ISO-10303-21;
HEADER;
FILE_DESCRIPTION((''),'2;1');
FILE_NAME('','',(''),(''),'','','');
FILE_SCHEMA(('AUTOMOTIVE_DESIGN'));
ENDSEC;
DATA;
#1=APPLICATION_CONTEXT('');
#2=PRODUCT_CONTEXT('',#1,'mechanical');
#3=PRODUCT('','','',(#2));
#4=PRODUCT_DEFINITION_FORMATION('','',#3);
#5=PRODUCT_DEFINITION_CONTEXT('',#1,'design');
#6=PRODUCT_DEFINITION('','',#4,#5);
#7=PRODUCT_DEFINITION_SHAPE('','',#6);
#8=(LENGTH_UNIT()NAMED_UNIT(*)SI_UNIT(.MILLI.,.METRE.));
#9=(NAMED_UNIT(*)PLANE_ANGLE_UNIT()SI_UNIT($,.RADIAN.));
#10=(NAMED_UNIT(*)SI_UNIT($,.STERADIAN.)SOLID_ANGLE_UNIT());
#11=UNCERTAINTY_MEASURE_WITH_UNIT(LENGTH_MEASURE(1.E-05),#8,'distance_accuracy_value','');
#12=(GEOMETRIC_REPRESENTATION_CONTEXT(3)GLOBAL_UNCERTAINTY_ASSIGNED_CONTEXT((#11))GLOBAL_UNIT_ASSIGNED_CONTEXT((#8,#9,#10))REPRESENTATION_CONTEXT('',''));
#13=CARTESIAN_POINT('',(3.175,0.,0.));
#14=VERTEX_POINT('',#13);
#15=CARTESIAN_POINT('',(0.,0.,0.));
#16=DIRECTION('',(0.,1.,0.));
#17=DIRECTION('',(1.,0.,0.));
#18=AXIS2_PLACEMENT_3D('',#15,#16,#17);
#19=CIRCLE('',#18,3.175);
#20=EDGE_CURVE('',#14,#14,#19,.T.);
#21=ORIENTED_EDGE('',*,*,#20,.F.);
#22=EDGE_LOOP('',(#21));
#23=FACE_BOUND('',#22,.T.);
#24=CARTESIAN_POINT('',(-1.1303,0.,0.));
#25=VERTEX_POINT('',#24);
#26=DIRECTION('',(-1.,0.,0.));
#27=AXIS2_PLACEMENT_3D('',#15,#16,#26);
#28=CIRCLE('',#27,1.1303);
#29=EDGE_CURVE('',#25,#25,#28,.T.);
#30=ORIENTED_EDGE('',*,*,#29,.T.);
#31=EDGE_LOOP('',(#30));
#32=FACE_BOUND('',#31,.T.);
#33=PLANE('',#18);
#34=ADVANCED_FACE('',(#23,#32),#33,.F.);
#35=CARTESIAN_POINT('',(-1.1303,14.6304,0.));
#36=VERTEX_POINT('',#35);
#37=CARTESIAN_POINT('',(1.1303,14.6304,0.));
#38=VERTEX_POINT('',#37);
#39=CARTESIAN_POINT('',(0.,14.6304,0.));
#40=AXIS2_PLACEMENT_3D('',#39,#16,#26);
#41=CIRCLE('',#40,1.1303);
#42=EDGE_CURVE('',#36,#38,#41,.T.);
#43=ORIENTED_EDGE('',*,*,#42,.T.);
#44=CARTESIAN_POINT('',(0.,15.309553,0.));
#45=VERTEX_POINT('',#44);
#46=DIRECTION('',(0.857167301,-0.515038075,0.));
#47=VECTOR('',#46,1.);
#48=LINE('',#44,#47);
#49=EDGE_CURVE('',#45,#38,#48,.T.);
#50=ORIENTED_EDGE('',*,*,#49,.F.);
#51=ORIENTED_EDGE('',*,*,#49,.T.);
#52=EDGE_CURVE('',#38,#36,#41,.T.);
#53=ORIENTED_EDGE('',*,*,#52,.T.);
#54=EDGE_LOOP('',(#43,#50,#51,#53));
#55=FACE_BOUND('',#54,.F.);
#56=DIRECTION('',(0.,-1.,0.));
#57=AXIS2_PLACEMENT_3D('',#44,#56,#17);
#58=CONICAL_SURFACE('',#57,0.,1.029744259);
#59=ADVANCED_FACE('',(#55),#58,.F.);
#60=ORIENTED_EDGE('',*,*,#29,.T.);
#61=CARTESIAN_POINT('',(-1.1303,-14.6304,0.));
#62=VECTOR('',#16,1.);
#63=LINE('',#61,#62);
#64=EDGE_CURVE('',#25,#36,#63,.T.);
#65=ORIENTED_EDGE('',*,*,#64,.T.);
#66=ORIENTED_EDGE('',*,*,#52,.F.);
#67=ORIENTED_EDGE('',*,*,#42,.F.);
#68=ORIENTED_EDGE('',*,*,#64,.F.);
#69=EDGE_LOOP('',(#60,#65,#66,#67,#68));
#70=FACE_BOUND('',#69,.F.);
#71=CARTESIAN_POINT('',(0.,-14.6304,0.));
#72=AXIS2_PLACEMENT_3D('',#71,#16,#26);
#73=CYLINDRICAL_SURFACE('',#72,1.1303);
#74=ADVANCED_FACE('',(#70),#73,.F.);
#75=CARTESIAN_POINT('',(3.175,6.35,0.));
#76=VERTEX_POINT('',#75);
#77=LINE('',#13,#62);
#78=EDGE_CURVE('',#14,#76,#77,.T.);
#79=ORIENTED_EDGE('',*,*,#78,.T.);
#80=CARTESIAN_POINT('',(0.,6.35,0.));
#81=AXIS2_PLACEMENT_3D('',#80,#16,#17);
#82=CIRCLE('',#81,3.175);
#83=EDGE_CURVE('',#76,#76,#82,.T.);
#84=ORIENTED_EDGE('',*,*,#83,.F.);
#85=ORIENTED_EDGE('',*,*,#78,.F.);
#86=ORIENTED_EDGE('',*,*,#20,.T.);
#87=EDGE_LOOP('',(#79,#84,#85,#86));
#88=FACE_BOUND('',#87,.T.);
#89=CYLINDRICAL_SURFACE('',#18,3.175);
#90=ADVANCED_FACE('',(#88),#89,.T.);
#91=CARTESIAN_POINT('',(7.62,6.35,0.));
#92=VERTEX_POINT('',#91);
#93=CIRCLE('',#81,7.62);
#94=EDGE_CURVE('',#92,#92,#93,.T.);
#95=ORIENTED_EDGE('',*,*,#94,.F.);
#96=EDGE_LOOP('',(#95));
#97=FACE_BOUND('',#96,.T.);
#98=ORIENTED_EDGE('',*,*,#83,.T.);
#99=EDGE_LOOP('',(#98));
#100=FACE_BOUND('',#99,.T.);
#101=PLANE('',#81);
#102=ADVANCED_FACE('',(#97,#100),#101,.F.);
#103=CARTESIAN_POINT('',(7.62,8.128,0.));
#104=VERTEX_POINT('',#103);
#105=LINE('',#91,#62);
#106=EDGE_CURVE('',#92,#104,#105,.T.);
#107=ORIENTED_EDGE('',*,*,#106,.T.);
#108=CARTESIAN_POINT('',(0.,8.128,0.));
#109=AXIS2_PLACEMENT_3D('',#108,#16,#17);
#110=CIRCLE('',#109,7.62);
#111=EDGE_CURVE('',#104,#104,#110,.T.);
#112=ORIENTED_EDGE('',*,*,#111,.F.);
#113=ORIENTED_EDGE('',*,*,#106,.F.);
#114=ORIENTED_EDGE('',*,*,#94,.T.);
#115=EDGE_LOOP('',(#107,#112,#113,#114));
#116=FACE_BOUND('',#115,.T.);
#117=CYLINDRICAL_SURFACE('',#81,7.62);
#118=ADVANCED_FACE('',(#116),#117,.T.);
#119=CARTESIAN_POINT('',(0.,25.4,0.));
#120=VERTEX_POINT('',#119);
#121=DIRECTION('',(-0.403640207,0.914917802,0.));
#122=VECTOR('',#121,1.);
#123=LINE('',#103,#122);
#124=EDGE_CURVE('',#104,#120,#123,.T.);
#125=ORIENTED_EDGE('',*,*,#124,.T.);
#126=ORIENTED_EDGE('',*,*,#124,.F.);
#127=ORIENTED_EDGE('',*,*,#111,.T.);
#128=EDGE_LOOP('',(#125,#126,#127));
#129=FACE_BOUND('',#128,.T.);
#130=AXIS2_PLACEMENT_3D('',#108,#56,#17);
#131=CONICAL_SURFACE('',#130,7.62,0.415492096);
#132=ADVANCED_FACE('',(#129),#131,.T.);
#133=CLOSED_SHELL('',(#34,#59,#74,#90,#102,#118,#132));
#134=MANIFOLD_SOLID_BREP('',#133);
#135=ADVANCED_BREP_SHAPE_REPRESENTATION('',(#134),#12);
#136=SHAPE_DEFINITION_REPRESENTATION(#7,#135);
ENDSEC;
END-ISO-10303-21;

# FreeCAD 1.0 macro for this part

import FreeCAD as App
import Part
import Sketcher
from FreeCAD import Vector
Q = App.Units.Quantity

doc = App.newDocument("Part")
params = doc.addObject("Spreadsheet::Sheet", "Params")
for row, (alias, value) in enumerate([
    ("sketch1_height", "1 in"),
    ("sketch1_height2", "0.25 in"),
    ("sketch1_height3", "0.07 in"),
    ("sketch1_width", "0.125 in"),
    ("revolution_angle", "360 deg"),
    ("sketch2_diameter", "0.089 in"),
    ("hole_diameter", "0.089 in"),
    ("hole_depth", "0.576 in"),
], start=1):
    params.set(f"A{row}", alias)
    params.set(f"B{row}", "=" + value)
    params.setAlias(f"B{row}", alias)

body = doc.addObject("PartDesign::Body", "Body")

# Sketch on XY plane
sketch1 = doc.addObject("Sketcher::SketchObject", "Sketch")
body.addObject(sketch1)
sketch1.AttachmentSupport = (doc.XY_Plane, [""])
sketch1.MapMode = "FlatFace"
sketch1.addGeometry([
    Part.LineSegment(Vector(0, 25.4, 0), Vector(0, 0, 0)),  # 0
    Part.LineSegment(Vector(0, 0, 0), Vector(3.2, 0, 0)),  # 1
    Part.LineSegment(Vector(3.2, 0, 0), Vector(3.2, 6.3, 0)),  # 2
    Part.LineSegment(Vector(3.2, 6.3, 0), Vector(7.6, 6.3, 0)),  # 3
    Part.LineSegment(Vector(7.6, 6.3, 0), Vector(7.6, 8.1, 0)),  # 4
    Part.LineSegment(Vector(7.6, 8.1, 0), Vector(0, 25.4, 0)),  # 5
], False)
sketch1.addConstraint([
    Sketcher.Constraint("Coincident", 0, 2, 1, 1),
    Sketcher.Constraint("Coincident", 1, 2, 2, 1),
    Sketcher.Constraint("Coincident", 2, 2, 3, 1),
    Sketcher.Constraint("Coincident", 3, 2, 4, 1),
    Sketcher.Constraint("Coincident", 4, 2, 5, 1),
    Sketcher.Constraint("Coincident", 5, 2, 0, 1),
    Sketcher.Constraint("Vertical", 0),
    Sketcher.Constraint("Horizontal", 1),
    Sketcher.Constraint("Vertical", 2),
    Sketcher.Constraint("Horizontal", 3),
    Sketcher.Constraint("Vertical", 4),
    Sketcher.Constraint("Coincident", 0, 2, -1, 1),
    Sketcher.Constraint("DistanceY", 0, 2, 0, 1, Q("1 in")),
    Sketcher.Constraint("DistanceY", 2, 1, 2, 2, Q("0.25 in")),
    Sketcher.Constraint("DistanceY", 4, 1, 4, 2, Q("0.07 in")),
    Sketcher.Constraint("DistanceX", -1, 1, 3, 2, Q("0.3 in")),
    Sketcher.Constraint("DistanceX", 1, 1, 1, 2, Q("0.125 in")),
])
sketch1.setExpression("Constraints[12]", "Params.sketch1_height")
sketch1.setExpression("Constraints[13]", "Params.sketch1_height2")
sketch1.setExpression("Constraints[14]", "Params.sketch1_height3")
sketch1.setExpression("Constraints[16]", "Params.sketch1_width")
revolution = doc.addObject("PartDesign::Revolution", "Revolution")
body.addObject(revolution)
revolution.Profile = sketch1
revolution.ReferenceAxis = (sketch1, ["V_Axis"])
revolution.setExpression("Angle", "Params.revolution_angle")

# Sketch on XZ plane
sketch2 = doc.addObject("Sketcher::SketchObject", "Sketch001")
body.addObject(sketch2)
sketch2.AttachmentSupport = (doc.XZ_Plane, [""])
sketch2.MapMode = "FlatFace"
sketch2.addGeometry(Part.Circle(Vector(0, 0, 0), Vector(0, 0, 1), 1.1), False)
sketch2.addConstraint([
    Sketcher.Constraint("Coincident", 0, 3, -1, 1),
    Sketcher.Constraint("Diameter", 0, Q("0.089 in")),
])
sketch2.setExpression("Constraints[1]", "Params.sketch2_diameter")
doc.recompute()
hole = doc.addObject("PartDesign::Hole", "Hole")
body.addObject(hole)
hole.Profile = sketch2
hole.ThreadType = "None"
hole.setExpression("Diameter", "Params.hole_diameter")
hole.DepthType = "Dimension"
hole.setExpression("Depth", "Params.hole_depth")
hole.DrillPoint = "Angled"
hole.DrillPointAngle = 118

doc.recompute()
